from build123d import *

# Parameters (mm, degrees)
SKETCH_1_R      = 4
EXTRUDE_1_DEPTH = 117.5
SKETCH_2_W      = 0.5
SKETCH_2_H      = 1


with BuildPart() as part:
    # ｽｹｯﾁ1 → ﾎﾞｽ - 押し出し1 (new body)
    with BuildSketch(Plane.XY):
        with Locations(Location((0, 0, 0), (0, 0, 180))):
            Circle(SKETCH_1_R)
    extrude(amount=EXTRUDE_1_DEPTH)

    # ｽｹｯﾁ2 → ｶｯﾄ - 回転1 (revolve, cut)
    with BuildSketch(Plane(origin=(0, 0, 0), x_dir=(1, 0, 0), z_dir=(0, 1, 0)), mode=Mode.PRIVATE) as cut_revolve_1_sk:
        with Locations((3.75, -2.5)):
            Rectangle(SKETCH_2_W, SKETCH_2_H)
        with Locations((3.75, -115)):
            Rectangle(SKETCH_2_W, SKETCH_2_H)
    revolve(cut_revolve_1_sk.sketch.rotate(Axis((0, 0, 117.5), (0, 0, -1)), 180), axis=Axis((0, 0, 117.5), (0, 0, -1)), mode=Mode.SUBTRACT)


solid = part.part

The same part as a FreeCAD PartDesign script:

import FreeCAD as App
import Part
import Sketcher
from FreeCAD import Vector
Q = App.Units.Quantity

doc = App.newDocument("Part")
body = doc.addObject("PartDesign::Body", "Body")

sketch1 = body.newObject("Sketcher::SketchObject", "Sketch")
sketch1.AttachmentSupport = (doc.getObject("XY_Plane"), [""])
sketch1.MapMode = "FlatFace"
sketch1.addGeometry(Part.Circle(Vector(0, 0, 0), Vector(0, 0, 1), 4), False)
sketch1.addConstraint([
    Sketcher.Constraint("Coincident", 0, 3, -1, 1),
    Sketcher.Constraint("Diameter", 0, Q("8 mm")),
])
pad1 = body.newObject("PartDesign::Pad", "Pad")
pad1.Profile = sketch1
pad1.Length = 117.5

sketch2 = body.newObject("Sketcher::SketchObject", "Sketch001")
sketch2.AttachmentSupport = (doc.getObject("XZ_Plane"), [""])
sketch2.MapMode = "FlatFace"
sketch2.addGeometry([
    Part.LineSegment(Vector(3.5, 2, 0), Vector(3.5, 3, 0)),
    Part.LineSegment(Vector(3.5, 3, 0), Vector(4, 3, 0)),
    Part.LineSegment(Vector(4, 3, 0), Vector(4, 2, 0)),
    Part.LineSegment(Vector(4, 2, 0), Vector(3.5, 2, 0)),
    Part.LineSegment(Vector(3.5, 114.5, 0), Vector(3.5, 115.5, 0)),
    Part.LineSegment(Vector(3.5, 115.5, 0), Vector(4, 115.5, 0)),
    Part.LineSegment(Vector(4, 115.5, 0), Vector(4, 114.5, 0)),
    Part.LineSegment(Vector(4, 114.5, 0), Vector(3.5, 114.5, 0)),
], False)
sketch2.addConstraint([
    Sketcher.Constraint("Coincident", 0, 2, 1, 1),
    Sketcher.Constraint("Coincident", 1, 2, 2, 1),
    Sketcher.Constraint("Coincident", 2, 2, 3, 1),
    Sketcher.Constraint("Coincident", 3, 2, 0, 1),
    Sketcher.Constraint("Coincident", 4, 2, 5, 1),
    Sketcher.Constraint("Coincident", 5, 2, 6, 1),
    Sketcher.Constraint("Coincident", 6, 2, 7, 1),
    Sketcher.Constraint("Coincident", 7, 2, 4, 1),
    Sketcher.Constraint("Vertical", 0),
    Sketcher.Constraint("Horizontal", 1),
    Sketcher.Constraint("Vertical", 2),
    Sketcher.Constraint("Horizontal", 3),
    Sketcher.Constraint("Vertical", 4),
    Sketcher.Constraint("Horizontal", 5),
    Sketcher.Constraint("Vertical", 6),
    Sketcher.Constraint("Horizontal", 7),
    Sketcher.Constraint("Vertical", 3, 2, 4, 2),
    Sketcher.Constraint("Vertical", 2, 2, 5, 2),
    Sketcher.Constraint("Equal", 2, 4),
    Sketcher.Constraint("DistanceY", 0, 1, 0, 2, Q("1 mm")),
    Sketcher.Constraint("DistanceX", 1, 1, 1, 2, Q("0.5 mm")),
    Sketcher.Constraint("DistanceY", -1, 1, 0, 2, Q("3 mm")),
    Sketcher.Constraint("DistanceX", -1, 1, 1, 2, Q("4 mm")),
    Sketcher.Constraint("DistanceY", -1, 1, 4, 2, Q("115.5 mm")),
])
groove = body.newObject("PartDesign::Groove", "Groove")
groove.Profile = sketch2
groove.ReferenceAxis = (sketch2, ["V_Axis"])
groove.Angle = 360

doc.recompute()
